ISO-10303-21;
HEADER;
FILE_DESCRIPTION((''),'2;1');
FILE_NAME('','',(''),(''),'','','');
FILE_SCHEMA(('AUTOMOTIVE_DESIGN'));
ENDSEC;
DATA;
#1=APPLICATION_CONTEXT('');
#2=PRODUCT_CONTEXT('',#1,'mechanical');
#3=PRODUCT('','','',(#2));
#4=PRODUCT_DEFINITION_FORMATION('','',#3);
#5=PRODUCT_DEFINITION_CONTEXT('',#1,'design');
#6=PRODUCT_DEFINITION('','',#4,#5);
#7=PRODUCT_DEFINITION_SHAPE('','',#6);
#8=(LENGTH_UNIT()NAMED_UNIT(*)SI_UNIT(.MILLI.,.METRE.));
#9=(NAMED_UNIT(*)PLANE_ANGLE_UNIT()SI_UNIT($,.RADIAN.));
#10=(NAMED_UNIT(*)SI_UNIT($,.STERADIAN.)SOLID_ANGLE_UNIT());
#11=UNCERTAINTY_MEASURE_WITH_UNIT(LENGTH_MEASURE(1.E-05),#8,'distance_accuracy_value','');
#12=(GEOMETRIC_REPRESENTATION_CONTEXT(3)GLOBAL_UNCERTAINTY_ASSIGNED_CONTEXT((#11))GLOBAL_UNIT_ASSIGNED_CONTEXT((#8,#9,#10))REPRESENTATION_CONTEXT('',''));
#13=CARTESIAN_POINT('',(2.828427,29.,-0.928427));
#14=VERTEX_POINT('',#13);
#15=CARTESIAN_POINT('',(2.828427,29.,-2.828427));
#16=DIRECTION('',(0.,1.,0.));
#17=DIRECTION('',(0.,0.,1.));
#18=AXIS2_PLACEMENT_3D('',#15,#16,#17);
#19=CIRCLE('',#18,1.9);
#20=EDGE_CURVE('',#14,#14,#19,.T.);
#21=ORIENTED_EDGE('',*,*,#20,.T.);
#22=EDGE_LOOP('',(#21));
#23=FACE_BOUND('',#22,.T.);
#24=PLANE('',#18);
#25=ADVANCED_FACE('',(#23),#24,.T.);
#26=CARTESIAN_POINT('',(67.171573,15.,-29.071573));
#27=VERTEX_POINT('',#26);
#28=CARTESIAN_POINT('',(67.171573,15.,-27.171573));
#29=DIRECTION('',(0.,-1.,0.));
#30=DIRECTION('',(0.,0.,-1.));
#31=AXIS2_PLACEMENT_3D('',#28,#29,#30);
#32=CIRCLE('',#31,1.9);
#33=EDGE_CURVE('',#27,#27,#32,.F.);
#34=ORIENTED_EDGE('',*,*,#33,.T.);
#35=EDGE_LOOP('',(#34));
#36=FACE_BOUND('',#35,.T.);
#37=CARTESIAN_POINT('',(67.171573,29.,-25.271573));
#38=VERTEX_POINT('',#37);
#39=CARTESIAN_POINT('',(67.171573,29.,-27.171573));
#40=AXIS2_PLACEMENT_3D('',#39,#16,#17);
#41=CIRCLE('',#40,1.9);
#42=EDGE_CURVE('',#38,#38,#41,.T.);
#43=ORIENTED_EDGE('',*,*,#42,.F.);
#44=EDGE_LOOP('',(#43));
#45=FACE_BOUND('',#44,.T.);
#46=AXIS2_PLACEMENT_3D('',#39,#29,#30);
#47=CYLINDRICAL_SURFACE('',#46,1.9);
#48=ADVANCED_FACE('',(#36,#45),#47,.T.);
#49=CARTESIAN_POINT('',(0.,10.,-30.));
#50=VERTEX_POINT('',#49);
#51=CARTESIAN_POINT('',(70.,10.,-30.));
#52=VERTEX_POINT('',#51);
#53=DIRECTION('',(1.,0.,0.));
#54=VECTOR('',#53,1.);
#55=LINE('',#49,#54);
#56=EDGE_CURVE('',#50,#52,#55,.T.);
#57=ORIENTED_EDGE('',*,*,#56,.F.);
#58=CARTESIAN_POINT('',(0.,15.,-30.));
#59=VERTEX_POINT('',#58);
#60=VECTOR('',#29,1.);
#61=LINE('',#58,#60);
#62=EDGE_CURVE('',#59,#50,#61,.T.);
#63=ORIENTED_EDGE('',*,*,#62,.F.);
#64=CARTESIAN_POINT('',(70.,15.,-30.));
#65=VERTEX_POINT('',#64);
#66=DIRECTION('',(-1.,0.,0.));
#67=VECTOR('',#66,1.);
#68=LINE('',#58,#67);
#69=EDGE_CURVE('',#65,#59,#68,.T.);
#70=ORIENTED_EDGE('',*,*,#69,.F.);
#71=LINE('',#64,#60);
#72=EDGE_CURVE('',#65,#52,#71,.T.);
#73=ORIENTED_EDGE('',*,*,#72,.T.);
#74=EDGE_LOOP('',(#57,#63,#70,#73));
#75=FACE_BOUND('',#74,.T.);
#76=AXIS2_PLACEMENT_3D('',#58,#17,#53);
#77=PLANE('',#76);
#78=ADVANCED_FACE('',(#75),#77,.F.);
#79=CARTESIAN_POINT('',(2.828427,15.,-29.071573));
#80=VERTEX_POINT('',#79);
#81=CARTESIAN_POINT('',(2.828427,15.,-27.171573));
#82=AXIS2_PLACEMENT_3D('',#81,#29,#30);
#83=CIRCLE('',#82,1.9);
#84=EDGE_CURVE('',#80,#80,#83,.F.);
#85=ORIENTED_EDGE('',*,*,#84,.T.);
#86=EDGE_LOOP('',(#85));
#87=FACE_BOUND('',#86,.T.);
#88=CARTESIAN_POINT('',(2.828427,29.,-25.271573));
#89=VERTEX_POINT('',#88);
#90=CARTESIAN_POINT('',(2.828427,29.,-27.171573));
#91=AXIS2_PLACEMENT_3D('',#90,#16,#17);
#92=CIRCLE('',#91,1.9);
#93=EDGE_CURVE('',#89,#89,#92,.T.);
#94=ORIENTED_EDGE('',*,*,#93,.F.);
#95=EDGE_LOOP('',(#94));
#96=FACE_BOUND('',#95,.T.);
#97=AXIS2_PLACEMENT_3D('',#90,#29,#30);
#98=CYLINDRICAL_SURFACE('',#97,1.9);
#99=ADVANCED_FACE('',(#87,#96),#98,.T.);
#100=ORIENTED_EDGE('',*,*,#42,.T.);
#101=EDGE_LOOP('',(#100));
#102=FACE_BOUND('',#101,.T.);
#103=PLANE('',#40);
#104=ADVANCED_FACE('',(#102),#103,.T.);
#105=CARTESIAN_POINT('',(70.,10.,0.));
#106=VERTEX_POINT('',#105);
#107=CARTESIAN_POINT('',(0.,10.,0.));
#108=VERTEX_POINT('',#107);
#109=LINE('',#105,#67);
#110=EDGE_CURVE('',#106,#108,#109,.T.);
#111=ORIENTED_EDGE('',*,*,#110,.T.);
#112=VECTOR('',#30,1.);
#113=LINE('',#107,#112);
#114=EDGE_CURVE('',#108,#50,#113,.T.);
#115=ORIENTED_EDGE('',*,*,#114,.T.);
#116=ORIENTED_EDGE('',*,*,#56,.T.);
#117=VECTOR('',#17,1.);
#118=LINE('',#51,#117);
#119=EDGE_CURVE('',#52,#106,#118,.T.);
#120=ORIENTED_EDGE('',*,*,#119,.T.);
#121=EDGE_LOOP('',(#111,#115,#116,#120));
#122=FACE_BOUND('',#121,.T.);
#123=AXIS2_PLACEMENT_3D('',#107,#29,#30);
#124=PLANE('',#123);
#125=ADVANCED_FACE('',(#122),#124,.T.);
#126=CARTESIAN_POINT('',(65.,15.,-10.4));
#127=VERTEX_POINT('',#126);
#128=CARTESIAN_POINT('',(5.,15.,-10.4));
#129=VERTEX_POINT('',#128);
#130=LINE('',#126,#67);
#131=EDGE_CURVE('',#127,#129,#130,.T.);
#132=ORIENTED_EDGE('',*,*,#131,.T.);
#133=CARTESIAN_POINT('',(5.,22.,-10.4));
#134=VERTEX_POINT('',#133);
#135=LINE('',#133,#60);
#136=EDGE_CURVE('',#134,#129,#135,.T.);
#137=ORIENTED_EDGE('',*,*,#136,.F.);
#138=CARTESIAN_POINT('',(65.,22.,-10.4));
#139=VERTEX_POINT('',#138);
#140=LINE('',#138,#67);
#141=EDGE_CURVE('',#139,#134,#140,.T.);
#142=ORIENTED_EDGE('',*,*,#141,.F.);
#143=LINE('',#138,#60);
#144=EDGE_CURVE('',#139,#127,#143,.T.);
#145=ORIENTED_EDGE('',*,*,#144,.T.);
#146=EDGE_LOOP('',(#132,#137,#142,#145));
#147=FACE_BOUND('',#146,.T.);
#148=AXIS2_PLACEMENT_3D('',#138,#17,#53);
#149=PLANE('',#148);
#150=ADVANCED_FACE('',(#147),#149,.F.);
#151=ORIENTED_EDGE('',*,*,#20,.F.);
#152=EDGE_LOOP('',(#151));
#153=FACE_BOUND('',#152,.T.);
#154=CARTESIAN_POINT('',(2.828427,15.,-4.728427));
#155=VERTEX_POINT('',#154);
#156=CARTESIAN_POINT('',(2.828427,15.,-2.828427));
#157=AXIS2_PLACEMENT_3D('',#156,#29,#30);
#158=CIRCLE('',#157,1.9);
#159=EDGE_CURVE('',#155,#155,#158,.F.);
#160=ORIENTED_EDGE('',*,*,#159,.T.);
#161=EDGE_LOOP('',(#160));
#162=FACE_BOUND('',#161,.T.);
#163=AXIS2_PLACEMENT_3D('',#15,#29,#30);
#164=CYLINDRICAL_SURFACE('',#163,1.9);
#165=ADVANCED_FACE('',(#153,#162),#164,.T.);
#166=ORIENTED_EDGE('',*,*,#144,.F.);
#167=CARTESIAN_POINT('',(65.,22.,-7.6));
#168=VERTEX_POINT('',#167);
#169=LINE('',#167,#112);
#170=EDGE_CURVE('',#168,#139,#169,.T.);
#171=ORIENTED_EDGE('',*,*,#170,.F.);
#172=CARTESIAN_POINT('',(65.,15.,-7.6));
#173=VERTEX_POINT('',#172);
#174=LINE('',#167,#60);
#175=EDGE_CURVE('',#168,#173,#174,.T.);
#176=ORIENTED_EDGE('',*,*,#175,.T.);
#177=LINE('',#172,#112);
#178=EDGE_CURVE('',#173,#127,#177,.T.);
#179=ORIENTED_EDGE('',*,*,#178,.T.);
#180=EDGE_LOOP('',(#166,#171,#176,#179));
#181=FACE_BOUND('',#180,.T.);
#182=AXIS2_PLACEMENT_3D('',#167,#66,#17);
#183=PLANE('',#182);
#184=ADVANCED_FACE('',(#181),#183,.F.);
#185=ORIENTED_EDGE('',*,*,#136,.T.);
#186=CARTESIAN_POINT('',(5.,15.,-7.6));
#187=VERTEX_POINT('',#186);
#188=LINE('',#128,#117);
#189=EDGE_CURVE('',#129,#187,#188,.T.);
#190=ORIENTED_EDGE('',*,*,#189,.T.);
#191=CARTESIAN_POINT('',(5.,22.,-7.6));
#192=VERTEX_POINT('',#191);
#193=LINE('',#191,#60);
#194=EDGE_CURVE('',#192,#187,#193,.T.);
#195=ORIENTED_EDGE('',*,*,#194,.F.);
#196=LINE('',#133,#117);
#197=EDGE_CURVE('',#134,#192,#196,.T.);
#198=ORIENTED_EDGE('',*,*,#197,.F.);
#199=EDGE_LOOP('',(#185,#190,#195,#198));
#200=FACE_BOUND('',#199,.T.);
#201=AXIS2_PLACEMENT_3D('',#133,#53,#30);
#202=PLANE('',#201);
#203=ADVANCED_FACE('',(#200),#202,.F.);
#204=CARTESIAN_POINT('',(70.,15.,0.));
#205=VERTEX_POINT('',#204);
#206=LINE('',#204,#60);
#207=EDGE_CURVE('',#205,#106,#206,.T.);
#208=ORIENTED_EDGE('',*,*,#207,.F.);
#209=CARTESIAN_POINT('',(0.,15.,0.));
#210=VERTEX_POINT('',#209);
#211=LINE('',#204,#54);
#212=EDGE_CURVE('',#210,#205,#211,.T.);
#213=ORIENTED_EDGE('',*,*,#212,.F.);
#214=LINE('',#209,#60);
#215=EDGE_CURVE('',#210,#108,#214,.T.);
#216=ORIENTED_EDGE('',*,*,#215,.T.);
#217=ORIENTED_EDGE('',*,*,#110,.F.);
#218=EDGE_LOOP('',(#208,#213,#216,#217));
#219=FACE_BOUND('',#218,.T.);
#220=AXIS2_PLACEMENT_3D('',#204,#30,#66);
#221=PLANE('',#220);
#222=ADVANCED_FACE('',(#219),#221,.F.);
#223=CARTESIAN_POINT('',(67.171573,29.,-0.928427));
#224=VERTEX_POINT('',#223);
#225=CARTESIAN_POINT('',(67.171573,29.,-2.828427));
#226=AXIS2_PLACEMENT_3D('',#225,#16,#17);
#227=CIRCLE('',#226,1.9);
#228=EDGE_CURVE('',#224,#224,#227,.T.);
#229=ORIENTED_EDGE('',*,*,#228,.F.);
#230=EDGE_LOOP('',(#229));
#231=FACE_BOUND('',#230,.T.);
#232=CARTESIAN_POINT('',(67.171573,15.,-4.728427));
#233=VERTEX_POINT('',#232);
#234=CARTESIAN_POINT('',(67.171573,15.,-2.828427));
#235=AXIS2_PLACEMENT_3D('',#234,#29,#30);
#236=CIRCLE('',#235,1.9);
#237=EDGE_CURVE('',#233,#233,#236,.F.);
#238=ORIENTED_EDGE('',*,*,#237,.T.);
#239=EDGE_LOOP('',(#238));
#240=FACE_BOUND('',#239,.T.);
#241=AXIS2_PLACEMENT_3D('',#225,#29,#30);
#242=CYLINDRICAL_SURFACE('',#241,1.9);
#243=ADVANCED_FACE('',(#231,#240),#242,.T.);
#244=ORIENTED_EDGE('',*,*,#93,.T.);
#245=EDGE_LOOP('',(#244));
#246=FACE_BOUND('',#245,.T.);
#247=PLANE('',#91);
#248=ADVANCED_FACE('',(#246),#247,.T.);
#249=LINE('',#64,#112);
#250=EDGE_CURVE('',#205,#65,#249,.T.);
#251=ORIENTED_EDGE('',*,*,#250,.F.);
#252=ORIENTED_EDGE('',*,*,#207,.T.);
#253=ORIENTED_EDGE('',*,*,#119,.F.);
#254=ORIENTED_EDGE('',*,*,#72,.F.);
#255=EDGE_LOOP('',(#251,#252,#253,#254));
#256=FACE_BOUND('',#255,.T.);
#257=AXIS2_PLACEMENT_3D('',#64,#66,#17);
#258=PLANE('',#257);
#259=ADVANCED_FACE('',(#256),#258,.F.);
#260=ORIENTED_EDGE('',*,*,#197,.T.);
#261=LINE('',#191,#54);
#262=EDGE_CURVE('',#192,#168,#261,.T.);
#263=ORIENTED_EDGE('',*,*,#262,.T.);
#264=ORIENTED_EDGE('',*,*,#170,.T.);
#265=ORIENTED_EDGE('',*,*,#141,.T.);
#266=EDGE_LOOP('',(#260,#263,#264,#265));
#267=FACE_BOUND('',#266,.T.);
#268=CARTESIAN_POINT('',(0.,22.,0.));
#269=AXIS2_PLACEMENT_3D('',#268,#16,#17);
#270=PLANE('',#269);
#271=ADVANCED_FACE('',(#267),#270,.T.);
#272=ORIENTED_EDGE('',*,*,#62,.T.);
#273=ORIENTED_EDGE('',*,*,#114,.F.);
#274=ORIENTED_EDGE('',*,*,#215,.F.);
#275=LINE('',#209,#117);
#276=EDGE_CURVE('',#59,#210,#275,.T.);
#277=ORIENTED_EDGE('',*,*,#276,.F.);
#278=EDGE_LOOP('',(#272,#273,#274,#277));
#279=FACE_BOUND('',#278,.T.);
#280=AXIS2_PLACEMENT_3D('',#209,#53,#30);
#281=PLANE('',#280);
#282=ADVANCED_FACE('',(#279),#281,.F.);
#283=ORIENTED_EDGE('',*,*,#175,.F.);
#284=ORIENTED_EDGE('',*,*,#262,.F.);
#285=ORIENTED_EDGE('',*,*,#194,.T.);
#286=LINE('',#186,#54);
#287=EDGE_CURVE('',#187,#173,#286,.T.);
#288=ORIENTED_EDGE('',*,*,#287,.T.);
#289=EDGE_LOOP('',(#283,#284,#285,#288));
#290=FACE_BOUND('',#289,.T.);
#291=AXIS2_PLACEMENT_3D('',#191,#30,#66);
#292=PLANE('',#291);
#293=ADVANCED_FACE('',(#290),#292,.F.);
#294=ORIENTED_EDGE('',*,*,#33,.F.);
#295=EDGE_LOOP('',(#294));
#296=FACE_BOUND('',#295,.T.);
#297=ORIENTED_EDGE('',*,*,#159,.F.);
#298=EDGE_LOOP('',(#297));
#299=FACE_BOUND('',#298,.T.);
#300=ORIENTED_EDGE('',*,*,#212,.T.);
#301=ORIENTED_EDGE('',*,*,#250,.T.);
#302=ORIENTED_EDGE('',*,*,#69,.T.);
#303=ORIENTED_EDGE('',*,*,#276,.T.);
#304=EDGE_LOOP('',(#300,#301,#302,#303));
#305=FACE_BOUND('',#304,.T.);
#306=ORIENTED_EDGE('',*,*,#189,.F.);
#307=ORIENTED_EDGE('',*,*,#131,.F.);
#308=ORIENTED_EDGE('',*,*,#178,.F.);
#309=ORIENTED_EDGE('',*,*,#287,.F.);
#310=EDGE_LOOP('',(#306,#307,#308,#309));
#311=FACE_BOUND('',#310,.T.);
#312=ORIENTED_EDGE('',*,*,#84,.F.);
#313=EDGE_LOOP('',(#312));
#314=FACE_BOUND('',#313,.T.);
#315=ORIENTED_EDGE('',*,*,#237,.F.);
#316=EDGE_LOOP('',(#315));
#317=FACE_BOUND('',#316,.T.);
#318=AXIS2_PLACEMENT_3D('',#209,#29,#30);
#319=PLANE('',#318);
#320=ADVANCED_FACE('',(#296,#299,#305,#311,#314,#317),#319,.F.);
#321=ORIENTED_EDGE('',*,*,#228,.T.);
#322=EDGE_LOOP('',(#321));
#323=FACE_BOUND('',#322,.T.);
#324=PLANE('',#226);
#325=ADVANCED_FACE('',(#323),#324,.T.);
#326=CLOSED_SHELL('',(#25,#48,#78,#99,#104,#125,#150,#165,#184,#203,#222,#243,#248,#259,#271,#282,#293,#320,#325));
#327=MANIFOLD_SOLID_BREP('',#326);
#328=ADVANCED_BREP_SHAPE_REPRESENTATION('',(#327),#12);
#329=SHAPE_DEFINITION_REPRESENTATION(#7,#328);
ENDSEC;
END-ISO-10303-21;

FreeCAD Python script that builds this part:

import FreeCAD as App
import Part
import Sketcher
from FreeCAD import Vector
Q = App.Units.Quantity

doc = App.newDocument("Part")
params = doc.addObject("Spreadsheet::Sheet", "Params")
for row, (alias, value) in enumerate([
    ("sketch1_width", "70 mm"),
    ("sketch1_height", "30 mm"),
    ("pad1_length", "15 mm"),
    ("sketch2_width", "60 mm"),
    ("sketch2_height", "2.8 mm"),
    ("pad2_length", "7 mm"),
    ("sketch3_width", "70 mm"),
    ("sketch3_height", "30 mm"),
    ("pocket1_length", "10 mm"),
    ("sketch4_diameter", "3.8 mm"),
    ("pad3_length", "14 mm"),
], start=1):
    params.set(f"A{row}", alias)
    params.set(f"B{row}", "=" + value)
    params.setAlias(f"B{row}", alias)

body = doc.addObject("PartDesign::Body", "Body")

# Sketch on XZ plane
sketch1 = body.newObject("Sketcher::SketchObject", "Sketch")
sketch1.AttachmentSupport = (doc.getObject("XZ_Plane"), [""])
sketch1.MapMode = "FlatFace"
sketch1.addGeometry(Part.LineSegment(Vector(0, -30, 0), Vector(0, 0, 0)), False)
sketch1.addGeometry(Part.LineSegment(Vector(0, 0, 0), Vector(70, 0, 0)), False)
sketch1.addGeometry(Part.LineSegment(Vector(70, 0, 0), Vector(70, -30, 0)), False)
sketch1.addGeometry(Part.LineSegment(Vector(70, -30, 0), Vector(0, -30, 0)), False)
sketch1.addConstraint(Sketcher.Constraint("Coincident", 0, 2, 1, 1))
sketch1.addConstraint(Sketcher.Constraint("Coincident", 1, 2, 2, 1))
sketch1.addConstraint(Sketcher.Constraint("Coincident", 2, 2, 3, 1))
sketch1.addConstraint(Sketcher.Constraint("Coincident", 3, 2, 0, 1))
sketch1.addConstraint(Sketcher.Constraint("Vertical", 0))
sketch1.addConstraint(Sketcher.Constraint("Horizontal", 1))
sketch1.addConstraint(Sketcher.Constraint("Vertical", 2))
sketch1.addConstraint(Sketcher.Constraint("Horizontal", 3))
sketch1.addConstraint(Sketcher.Constraint("Coincident", 0, 2, -1, 1))
sketch1.addConstraint(Sketcher.Constraint("DistanceX", 1, 1, 1, 2, Q("70 mm")))
sketch1.addConstraint(Sketcher.Constraint("DistanceY", 0, 1, 0, 2, Q("30 mm")))
sketch1.setExpression("Constraints[9]", "Params.sketch1_width")
sketch1.setExpression("Constraints[10]", "Params.sketch1_height")
pad1 = body.newObject("PartDesign::Pad", "Pad")
pad1.Profile = sketch1
pad1.setExpression("Length", "Params.pad1_length")
pad1.Reversed = True

# Sketch on XZ plane
sketch2 = body.newObject("Sketcher::SketchObject", "Sketch001")
sketch2.AttachmentSupport = (doc.getObject("XZ_Plane"), [""])
sketch2.MapMode = "FlatFace"
sketch2.AttachmentOffset = App.Placement(Vector(0, 0, -15), App.Rotation())
sketch2.addGeometry(Part.LineSegment(Vector(5, -10.4, 0), Vector(5, -7.6, 0)), False)
sketch2.addGeometry(Part.LineSegment(Vector(5, -7.6, 0), Vector(65, -7.6, 0)), False)
sketch2.addGeometry(Part.LineSegment(Vector(65, -7.6, 0), Vector(65, -10.4, 0)), False)
sketch2.addGeometry(Part.LineSegment(Vector(65, -10.4, 0), Vector(5, -10.4, 0)), False)
sketch2.addConstraint(Sketcher.Constraint("Coincident", 0, 2, 1, 1))
sketch2.addConstraint(Sketcher.Constraint("Coincident", 1, 2, 2, 1))
sketch2.addConstraint(Sketcher.Constraint("Coincident", 2, 2, 3, 1))
sketch2.addConstraint(Sketcher.Constraint("Coincident", 3, 2, 0, 1))
sketch2.addConstraint(Sketcher.Constraint("Vertical", 0))
sketch2.addConstraint(Sketcher.Constraint("Horizontal", 1))
sketch2.addConstraint(Sketcher.Constraint("Vertical", 2))
sketch2.addConstraint(Sketcher.Constraint("Horizontal", 3))
sketch2.addConstraint(Sketcher.Constraint("DistanceX", 1, 1, 1, 2, Q("60 mm")))
sketch2.addConstraint(Sketcher.Constraint("DistanceY", 0, 1, 0, 2, Q("2.8 mm")))
sketch2.addConstraint(Sketcher.Constraint("DistanceX", -1, 1, 0, 2, Q("5 mm")))
sketch2.addConstraint(Sketcher.Constraint("DistanceY", 0, 2, -1, 1, Q("7.6 mm")))
sketch2.setExpression("Constraints[8]", "Params.sketch2_width")
sketch2.setExpression("Constraints[9]", "Params.sketch2_height")
pad2 = body.newObject("PartDesign::Pad", "Pad001")
pad2.Profile = sketch2
pad2.setExpression("Length", "Params.pad2_length")
pad2.Reversed = True

# Sketch on XZ plane
sketch3 = body.newObject("Sketcher::SketchObject", "Sketch002")
sketch3.AttachmentSupport = (doc.getObject("XZ_Plane"), [""])
sketch3.MapMode = "FlatFace"
sketch3.addGeometry(Part.LineSegment(Vector(70, -30, 0), Vector(70, 0, 0)), False)
sketch3.addGeometry(Part.LineSegment(Vector(70, 0, 0), Vector(0, 0, 0)), False)
sketch3.addGeometry(Part.LineSegment(Vector(0, 0, 0), Vector(0, -30, 0)), False)
sketch3.addGeometry(Part.LineSegment(Vector(0, -30, 0), Vector(70, -30, 0)), False)
sketch3.addConstraint(Sketcher.Constraint("Coincident", 0, 2, 1, 1))
sketch3.addConstraint(Sketcher.Constraint("Coincident", 1, 2, 2, 1))
sketch3.addConstraint(Sketcher.Constraint("Coincident", 2, 2, 3, 1))
sketch3.addConstraint(Sketcher.Constraint("Coincident", 3, 2, 0, 1))
sketch3.addConstraint(Sketcher.Constraint("Vertical", 0))
sketch3.addConstraint(Sketcher.Constraint("Horizontal", 1))
sketch3.addConstraint(Sketcher.Constraint("Vertical", 2))
sketch3.addConstraint(Sketcher.Constraint("Horizontal", 3))
sketch3.addConstraint(Sketcher.Constraint("Coincident", 1, 2, -1, 1))
sketch3.addConstraint(Sketcher.Constraint("DistanceX", 1, 2, 1, 1, Q("70 mm")))
sketch3.addConstraint(Sketcher.Constraint("DistanceY", 0, 1, 0, 2, Q("30 mm")))
sketch3.setExpression("Constraints[9]", "Params.sketch3_width")
sketch3.setExpression("Constraints[10]", "Params.sketch3_height")
pocket1 = body.newObject("PartDesign::Pocket", "Pocket")
pocket1.Profile = sketch3
pocket1.setExpression("Length", "Params.pocket1_length")

# Sketch on XZ plane
sketch4 = body.newObject("Sketcher::SketchObject", "Sketch003")
sketch4.AttachmentSupport = (doc.getObject("XZ_Plane"), [""])
sketch4.MapMode = "FlatFace"
sketch4.AttachmentOffset = App.Placement(Vector(0, 0, -15), App.Rotation())
sketch4.addGeometry(Part.Circle(Vector(2.8, -2.8, 0), Vector(0, 0, 1), 1.9), False)
sketch4.addGeometry(Part.Circle(Vector(2.8, -27.2, 0), Vector(0, 0, 1), 1.9), False)
sketch4.addGeometry(Part.Circle(Vector(67.2, -27.2, 0), Vector(0, 0, 1), 1.9), False)
sketch4.addGeometry(Part.Circle(Vector(67.2, -2.8, 0), Vector(0, 0, 1), 1.9), False)
sketch4.addConstraint(Sketcher.Constraint("Equal", 0, 1))
sketch4.addConstraint(Sketcher.Constraint("Equal", 1, 2))
sketch4.addConstraint(Sketcher.Constraint("Equal", 2, 3))
sketch4.addConstraint(Sketcher.Constraint("Horizontal", 1, 3, 2, 3))
sketch4.addConstraint(Sketcher.Constraint("Horizontal", 0, 3, 3, 3))
sketch4.addConstraint(Sketcher.Constraint("Vertical", 0, 3, 1, 3))
sketch4.addConstraint(Sketcher.Constraint("Vertical", 2, 3, 3, 3))
sketch4.addConstraint(Sketcher.Constraint("Diameter", 0, Q("3.8 mm")))
sketch4.addConstraint(Sketcher.Constraint("DistanceX", -1, 1, 0, 3, Q("2.828427 mm")))
sketch4.addConstraint(Sketcher.Constraint("DistanceY", 0, 3, -1, 1, Q("2.828427 mm")))
sketch4.addConstraint(Sketcher.Constraint("DistanceY", 1, 3, -1, 1, Q("27.171573 mm")))
sketch4.addConstraint(Sketcher.Constraint("DistanceX", -1, 1, 2, 3, Q("67.171573 mm")))
sketch4.setExpression("Constraints[7]", "Params.sketch4_diameter")
pad3 = body.newObject("PartDesign::Pad", "Pad002")
pad3.Profile = sketch4
pad3.setExpression("Length", "Params.pad3_length")
pad3.Reversed = True

doc.recompute()
